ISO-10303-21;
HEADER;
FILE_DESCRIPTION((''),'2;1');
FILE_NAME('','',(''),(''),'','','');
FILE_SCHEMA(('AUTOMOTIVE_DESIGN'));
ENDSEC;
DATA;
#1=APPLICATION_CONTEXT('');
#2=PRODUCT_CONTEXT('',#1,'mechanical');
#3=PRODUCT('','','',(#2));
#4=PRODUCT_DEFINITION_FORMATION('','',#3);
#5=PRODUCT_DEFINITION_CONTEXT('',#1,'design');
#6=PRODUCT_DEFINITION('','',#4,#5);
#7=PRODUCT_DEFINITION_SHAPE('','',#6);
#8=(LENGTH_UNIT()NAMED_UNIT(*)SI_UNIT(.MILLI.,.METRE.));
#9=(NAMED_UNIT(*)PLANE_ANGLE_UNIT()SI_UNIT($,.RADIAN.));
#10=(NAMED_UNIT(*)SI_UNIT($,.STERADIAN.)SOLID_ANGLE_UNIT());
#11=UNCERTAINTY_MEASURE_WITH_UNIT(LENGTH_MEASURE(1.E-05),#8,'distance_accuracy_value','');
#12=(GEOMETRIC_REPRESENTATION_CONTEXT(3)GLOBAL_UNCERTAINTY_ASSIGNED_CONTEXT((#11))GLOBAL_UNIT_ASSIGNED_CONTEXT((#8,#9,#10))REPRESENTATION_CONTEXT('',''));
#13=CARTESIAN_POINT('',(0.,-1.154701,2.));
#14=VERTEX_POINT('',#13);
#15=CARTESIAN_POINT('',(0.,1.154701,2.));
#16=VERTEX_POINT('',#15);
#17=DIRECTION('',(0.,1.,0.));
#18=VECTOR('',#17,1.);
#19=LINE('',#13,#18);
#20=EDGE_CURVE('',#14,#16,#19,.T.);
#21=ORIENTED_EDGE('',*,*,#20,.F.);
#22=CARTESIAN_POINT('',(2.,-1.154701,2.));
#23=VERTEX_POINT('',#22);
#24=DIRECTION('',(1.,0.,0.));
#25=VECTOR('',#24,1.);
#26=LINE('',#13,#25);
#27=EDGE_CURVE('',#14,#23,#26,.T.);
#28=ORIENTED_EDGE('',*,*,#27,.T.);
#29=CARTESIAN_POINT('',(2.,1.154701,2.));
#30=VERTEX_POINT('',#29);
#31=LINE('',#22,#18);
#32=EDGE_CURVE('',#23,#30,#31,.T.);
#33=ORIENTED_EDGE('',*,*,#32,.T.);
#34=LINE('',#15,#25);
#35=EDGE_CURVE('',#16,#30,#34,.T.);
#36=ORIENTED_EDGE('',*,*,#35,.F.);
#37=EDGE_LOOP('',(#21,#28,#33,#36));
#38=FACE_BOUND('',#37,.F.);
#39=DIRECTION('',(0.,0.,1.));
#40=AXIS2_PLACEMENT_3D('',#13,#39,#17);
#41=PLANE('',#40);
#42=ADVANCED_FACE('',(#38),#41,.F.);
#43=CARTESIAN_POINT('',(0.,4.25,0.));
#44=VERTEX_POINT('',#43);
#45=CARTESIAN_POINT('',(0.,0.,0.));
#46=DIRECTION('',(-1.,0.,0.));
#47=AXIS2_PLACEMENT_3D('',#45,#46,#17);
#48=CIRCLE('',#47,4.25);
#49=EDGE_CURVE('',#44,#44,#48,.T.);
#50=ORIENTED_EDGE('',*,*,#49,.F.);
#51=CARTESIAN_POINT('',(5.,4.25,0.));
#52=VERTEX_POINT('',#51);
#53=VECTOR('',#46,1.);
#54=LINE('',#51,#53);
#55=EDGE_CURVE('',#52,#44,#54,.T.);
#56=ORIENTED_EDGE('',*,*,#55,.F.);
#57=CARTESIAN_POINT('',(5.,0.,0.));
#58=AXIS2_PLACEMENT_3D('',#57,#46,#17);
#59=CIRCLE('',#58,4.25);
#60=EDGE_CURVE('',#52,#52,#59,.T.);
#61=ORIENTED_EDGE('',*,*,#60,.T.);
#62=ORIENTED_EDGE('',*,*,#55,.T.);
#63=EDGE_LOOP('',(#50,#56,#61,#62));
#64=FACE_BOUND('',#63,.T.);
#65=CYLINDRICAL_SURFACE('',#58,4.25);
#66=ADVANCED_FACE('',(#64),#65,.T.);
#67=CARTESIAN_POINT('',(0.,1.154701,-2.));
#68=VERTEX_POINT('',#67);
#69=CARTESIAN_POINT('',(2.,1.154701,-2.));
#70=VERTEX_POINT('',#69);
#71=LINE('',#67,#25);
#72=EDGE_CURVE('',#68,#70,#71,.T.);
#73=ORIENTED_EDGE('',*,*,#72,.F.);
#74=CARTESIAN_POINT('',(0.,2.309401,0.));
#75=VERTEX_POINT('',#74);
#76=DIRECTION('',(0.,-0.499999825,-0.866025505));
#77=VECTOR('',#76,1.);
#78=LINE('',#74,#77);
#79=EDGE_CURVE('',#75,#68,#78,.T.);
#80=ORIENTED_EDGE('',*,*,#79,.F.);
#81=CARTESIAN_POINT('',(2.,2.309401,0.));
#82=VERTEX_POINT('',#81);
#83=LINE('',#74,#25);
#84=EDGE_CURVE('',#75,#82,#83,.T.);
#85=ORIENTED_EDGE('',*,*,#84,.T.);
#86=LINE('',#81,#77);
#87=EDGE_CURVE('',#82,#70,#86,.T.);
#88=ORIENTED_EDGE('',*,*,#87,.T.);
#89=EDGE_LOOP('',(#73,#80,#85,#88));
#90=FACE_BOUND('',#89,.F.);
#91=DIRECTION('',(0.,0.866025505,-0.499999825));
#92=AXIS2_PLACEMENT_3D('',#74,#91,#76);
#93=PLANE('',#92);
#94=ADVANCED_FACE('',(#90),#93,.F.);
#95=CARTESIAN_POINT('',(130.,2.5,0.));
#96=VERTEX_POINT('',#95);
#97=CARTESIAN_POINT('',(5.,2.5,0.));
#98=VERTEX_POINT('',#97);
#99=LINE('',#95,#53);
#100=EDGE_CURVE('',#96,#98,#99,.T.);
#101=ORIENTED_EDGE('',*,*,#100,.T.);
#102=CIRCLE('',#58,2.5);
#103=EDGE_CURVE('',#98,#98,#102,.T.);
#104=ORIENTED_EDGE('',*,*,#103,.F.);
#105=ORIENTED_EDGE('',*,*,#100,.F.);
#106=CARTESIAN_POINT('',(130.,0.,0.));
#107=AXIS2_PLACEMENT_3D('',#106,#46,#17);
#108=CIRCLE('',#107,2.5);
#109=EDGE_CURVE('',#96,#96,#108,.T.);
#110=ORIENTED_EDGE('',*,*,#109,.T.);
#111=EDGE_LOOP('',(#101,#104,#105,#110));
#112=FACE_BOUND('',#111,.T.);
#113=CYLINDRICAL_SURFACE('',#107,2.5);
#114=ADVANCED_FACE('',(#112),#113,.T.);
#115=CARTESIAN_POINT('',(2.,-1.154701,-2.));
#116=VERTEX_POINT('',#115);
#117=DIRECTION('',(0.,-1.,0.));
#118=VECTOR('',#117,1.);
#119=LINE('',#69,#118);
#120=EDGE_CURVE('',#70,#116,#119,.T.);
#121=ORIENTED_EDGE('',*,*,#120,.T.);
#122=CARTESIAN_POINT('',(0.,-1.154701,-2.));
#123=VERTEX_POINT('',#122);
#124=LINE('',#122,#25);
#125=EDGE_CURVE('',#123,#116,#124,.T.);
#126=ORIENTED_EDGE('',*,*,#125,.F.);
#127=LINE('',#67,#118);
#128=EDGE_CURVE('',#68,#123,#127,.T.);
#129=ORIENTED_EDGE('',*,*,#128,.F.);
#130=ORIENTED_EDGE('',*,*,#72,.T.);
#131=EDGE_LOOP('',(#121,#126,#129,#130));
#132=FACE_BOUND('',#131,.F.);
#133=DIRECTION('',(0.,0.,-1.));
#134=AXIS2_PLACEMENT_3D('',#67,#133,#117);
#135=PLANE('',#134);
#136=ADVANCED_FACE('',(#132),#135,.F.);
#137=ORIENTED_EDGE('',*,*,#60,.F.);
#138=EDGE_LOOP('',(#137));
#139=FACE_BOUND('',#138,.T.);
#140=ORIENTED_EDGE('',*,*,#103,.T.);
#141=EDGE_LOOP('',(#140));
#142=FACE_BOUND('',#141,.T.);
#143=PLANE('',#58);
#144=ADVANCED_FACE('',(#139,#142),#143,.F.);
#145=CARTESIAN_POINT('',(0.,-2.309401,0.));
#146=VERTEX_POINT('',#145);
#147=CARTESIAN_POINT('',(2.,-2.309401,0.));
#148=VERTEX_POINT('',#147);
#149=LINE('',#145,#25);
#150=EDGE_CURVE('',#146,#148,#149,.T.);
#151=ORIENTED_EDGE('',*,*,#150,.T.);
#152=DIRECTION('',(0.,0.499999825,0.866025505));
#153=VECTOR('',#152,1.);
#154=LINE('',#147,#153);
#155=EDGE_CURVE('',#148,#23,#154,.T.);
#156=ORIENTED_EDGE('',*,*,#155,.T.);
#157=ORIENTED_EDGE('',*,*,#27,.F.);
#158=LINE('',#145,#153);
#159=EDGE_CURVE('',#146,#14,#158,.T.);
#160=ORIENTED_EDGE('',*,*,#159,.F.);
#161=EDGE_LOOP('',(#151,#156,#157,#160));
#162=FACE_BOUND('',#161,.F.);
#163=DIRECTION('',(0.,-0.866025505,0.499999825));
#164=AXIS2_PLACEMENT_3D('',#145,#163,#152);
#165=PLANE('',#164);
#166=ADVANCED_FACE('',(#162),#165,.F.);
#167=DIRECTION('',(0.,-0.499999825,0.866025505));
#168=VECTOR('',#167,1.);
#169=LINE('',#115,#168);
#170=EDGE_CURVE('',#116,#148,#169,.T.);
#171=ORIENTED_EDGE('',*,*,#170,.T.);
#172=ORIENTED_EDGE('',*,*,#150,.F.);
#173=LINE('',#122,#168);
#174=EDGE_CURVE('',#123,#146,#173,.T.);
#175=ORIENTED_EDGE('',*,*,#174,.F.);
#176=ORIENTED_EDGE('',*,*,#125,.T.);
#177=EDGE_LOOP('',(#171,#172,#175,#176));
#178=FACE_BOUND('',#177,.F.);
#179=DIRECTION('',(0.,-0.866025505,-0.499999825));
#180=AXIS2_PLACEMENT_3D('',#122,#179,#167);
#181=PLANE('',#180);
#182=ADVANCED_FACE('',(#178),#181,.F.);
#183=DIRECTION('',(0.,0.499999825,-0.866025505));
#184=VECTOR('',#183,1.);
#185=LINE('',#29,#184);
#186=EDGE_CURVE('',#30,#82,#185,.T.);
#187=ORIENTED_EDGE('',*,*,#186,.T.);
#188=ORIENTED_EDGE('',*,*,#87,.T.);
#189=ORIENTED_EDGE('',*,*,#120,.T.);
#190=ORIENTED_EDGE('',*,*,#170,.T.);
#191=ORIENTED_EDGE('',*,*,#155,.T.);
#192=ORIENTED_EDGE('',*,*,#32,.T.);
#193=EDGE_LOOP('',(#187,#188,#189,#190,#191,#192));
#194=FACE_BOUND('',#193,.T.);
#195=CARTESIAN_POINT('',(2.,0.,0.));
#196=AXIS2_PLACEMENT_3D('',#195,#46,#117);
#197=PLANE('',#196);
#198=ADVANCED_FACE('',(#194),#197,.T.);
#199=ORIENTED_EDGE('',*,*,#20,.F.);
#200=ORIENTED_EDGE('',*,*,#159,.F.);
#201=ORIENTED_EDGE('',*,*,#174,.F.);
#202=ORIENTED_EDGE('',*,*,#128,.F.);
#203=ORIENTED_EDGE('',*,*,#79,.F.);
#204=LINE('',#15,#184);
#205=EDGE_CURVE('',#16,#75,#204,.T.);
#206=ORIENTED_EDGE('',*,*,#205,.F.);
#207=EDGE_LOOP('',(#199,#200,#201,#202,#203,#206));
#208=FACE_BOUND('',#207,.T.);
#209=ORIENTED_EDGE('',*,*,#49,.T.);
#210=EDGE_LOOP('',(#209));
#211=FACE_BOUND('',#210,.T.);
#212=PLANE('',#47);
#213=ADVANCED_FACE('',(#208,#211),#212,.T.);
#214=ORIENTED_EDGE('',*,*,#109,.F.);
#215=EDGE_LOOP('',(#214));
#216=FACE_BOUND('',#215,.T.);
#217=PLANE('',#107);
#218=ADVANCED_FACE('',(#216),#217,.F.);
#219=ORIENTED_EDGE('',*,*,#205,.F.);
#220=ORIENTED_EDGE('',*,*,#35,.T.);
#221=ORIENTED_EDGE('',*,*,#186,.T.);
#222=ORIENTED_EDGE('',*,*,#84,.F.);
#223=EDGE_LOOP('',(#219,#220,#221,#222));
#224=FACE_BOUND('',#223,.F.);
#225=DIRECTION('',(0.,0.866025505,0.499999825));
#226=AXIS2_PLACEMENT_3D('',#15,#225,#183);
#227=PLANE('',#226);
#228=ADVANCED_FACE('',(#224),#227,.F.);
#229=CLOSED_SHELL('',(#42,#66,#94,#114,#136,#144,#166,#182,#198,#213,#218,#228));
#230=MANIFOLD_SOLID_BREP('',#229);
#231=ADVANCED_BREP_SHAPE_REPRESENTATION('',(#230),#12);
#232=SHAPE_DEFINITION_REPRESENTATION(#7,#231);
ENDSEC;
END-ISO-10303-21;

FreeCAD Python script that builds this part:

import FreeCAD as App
import Part
import Sketcher

V = App.Vector
Q = App.Units.Quantity


def add_polygon(sketch, points):
    """Adds a closed chain of lines whose ends are joined by coincident constraints."""
    first, n = sketch.GeometryCount, len(points)
    for a, b in zip(points, points[1:] + points[:1]):
        sketch.addGeometry(Part.LineSegment(App.Vector(*a, 0), App.Vector(*b, 0)), False)
    for i in range(n):
        sketch.addConstraint(Sketcher.Constraint("Coincident", first + i, 2, first + (i + 1) % n, 1))

doc = App.newDocument("Part")
params = doc.addObject("Spreadsheet::Sheet", "Params")
for row, (alias, value) in enumerate([
    ("sketch1_width", "130 mm"),
    ("sketch1_width2", "125 mm"),
    ("sketch1_height", "2.5 mm"),
    ("sketch1_height2", "4.25 mm"),
    ("revolution_angle", "360 deg"),
    ("pocket1_length", "2 mm"),
], start=1):
    params.set(f"A{row}", alias)
    params.set(f"B{row}", "=" + value)
    params.setAlias(f"B{row}", alias)

body = doc.addObject("PartDesign::Body", "Body")

# Sketch on XY plane
sketch1 = doc.addObject("Sketcher::SketchObject", "Sketch")
body.addObject(sketch1)
sketch1.AttachmentSupport = (doc.XY_Plane, [""])
sketch1.MapMode = "FlatFace"
add_polygon(sketch1, [(0, 4.2), (0, 0), (130, 0), (130, 2.5), (5, 2.5), (5, 4.2)])  # lines 0-5
sketch1.addConstraint([
    Sketcher.Constraint("Vertical", 0),
    Sketcher.Constraint("Horizontal", 1),
    Sketcher.Constraint("Vertical", 2),
    Sketcher.Constraint("Horizontal", 3),
    Sketcher.Constraint("Vertical", 4),
    Sketcher.Constraint("Horizontal", 5),
    Sketcher.Constraint("Coincident", 0, 2, -1, 1),
    Sketcher.Constraint("DistanceX", 1, 1, 1, 2, 130.0),
    Sketcher.Constraint("DistanceX", 3, 2, 3, 1, 125.0),
    Sketcher.Constraint("DistanceY", 2, 1, 2, 2, 2.5),
    Sketcher.Constraint("DistanceY", 0, 2, 0, 1, 4.25),
])
sketch1.setExpression("Constraints[13]", "Params.sketch1_width")
sketch1.setExpression("Constraints[14]", "Params.sketch1_width2")
sketch1.setExpression("Constraints[15]", "Params.sketch1_height")
sketch1.setExpression("Constraints[16]", "Params.sketch1_height2")
revolution = doc.addObject("PartDesign::Revolution", "Revolution")
body.addObject(revolution)
revolution.Profile = sketch1
revolution.ReferenceAxis = (sketch1, ["H_Axis"])
revolution.setExpression("Angle", "Params.revolution_angle")

# Sketch on YZ plane
sketch2 = doc.addObject("Sketcher::SketchObject", "Sketch001")
body.addObject(sketch2)
sketch2.AttachmentSupport = (doc.YZ_Plane, [""])
sketch2.MapMode = "FlatFace"
add_polygon(sketch2, [(-1.2, 2), (1.2, 2), (2.3, 0), (1.2, -2), (-1.2, -2), (-2.3, 0)])  # lines 0-5
sketch2.addConstraint([
    Sketcher.Constraint("Horizontal", 0),
    Sketcher.Constraint("Horizontal", 3),
    Sketcher.Constraint("Symmetric", 0, 2, 3, 2, -1, 1),
    Sketcher.Constraint("Symmetric", 1, 2, 4, 2, -1, 1),
    Sketcher.Constraint("PointOnObject", 1, 2, -1),
    Sketcher.Constraint("Parallel", 2, 5),
    Sketcher.Constraint("Vertical", 0, 2, 2, 2),
    Sketcher.Constraint("Angle", 1, Q("-60.000012 deg")),
    Sketcher.Constraint("DistanceY", -1, 1, 0, 2, 2.0),
    Sketcher.Constraint("DistanceX", 0, 1, 0, 2, 2.309402),
])
pocket1 = doc.addObject("PartDesign::Pocket", "Pocket")
body.addObject(pocket1)
pocket1.Profile = sketch2
pocket1.setExpression("Length", "Params.pocket1_length")
pocket1.Reversed = True

doc.recompute()
